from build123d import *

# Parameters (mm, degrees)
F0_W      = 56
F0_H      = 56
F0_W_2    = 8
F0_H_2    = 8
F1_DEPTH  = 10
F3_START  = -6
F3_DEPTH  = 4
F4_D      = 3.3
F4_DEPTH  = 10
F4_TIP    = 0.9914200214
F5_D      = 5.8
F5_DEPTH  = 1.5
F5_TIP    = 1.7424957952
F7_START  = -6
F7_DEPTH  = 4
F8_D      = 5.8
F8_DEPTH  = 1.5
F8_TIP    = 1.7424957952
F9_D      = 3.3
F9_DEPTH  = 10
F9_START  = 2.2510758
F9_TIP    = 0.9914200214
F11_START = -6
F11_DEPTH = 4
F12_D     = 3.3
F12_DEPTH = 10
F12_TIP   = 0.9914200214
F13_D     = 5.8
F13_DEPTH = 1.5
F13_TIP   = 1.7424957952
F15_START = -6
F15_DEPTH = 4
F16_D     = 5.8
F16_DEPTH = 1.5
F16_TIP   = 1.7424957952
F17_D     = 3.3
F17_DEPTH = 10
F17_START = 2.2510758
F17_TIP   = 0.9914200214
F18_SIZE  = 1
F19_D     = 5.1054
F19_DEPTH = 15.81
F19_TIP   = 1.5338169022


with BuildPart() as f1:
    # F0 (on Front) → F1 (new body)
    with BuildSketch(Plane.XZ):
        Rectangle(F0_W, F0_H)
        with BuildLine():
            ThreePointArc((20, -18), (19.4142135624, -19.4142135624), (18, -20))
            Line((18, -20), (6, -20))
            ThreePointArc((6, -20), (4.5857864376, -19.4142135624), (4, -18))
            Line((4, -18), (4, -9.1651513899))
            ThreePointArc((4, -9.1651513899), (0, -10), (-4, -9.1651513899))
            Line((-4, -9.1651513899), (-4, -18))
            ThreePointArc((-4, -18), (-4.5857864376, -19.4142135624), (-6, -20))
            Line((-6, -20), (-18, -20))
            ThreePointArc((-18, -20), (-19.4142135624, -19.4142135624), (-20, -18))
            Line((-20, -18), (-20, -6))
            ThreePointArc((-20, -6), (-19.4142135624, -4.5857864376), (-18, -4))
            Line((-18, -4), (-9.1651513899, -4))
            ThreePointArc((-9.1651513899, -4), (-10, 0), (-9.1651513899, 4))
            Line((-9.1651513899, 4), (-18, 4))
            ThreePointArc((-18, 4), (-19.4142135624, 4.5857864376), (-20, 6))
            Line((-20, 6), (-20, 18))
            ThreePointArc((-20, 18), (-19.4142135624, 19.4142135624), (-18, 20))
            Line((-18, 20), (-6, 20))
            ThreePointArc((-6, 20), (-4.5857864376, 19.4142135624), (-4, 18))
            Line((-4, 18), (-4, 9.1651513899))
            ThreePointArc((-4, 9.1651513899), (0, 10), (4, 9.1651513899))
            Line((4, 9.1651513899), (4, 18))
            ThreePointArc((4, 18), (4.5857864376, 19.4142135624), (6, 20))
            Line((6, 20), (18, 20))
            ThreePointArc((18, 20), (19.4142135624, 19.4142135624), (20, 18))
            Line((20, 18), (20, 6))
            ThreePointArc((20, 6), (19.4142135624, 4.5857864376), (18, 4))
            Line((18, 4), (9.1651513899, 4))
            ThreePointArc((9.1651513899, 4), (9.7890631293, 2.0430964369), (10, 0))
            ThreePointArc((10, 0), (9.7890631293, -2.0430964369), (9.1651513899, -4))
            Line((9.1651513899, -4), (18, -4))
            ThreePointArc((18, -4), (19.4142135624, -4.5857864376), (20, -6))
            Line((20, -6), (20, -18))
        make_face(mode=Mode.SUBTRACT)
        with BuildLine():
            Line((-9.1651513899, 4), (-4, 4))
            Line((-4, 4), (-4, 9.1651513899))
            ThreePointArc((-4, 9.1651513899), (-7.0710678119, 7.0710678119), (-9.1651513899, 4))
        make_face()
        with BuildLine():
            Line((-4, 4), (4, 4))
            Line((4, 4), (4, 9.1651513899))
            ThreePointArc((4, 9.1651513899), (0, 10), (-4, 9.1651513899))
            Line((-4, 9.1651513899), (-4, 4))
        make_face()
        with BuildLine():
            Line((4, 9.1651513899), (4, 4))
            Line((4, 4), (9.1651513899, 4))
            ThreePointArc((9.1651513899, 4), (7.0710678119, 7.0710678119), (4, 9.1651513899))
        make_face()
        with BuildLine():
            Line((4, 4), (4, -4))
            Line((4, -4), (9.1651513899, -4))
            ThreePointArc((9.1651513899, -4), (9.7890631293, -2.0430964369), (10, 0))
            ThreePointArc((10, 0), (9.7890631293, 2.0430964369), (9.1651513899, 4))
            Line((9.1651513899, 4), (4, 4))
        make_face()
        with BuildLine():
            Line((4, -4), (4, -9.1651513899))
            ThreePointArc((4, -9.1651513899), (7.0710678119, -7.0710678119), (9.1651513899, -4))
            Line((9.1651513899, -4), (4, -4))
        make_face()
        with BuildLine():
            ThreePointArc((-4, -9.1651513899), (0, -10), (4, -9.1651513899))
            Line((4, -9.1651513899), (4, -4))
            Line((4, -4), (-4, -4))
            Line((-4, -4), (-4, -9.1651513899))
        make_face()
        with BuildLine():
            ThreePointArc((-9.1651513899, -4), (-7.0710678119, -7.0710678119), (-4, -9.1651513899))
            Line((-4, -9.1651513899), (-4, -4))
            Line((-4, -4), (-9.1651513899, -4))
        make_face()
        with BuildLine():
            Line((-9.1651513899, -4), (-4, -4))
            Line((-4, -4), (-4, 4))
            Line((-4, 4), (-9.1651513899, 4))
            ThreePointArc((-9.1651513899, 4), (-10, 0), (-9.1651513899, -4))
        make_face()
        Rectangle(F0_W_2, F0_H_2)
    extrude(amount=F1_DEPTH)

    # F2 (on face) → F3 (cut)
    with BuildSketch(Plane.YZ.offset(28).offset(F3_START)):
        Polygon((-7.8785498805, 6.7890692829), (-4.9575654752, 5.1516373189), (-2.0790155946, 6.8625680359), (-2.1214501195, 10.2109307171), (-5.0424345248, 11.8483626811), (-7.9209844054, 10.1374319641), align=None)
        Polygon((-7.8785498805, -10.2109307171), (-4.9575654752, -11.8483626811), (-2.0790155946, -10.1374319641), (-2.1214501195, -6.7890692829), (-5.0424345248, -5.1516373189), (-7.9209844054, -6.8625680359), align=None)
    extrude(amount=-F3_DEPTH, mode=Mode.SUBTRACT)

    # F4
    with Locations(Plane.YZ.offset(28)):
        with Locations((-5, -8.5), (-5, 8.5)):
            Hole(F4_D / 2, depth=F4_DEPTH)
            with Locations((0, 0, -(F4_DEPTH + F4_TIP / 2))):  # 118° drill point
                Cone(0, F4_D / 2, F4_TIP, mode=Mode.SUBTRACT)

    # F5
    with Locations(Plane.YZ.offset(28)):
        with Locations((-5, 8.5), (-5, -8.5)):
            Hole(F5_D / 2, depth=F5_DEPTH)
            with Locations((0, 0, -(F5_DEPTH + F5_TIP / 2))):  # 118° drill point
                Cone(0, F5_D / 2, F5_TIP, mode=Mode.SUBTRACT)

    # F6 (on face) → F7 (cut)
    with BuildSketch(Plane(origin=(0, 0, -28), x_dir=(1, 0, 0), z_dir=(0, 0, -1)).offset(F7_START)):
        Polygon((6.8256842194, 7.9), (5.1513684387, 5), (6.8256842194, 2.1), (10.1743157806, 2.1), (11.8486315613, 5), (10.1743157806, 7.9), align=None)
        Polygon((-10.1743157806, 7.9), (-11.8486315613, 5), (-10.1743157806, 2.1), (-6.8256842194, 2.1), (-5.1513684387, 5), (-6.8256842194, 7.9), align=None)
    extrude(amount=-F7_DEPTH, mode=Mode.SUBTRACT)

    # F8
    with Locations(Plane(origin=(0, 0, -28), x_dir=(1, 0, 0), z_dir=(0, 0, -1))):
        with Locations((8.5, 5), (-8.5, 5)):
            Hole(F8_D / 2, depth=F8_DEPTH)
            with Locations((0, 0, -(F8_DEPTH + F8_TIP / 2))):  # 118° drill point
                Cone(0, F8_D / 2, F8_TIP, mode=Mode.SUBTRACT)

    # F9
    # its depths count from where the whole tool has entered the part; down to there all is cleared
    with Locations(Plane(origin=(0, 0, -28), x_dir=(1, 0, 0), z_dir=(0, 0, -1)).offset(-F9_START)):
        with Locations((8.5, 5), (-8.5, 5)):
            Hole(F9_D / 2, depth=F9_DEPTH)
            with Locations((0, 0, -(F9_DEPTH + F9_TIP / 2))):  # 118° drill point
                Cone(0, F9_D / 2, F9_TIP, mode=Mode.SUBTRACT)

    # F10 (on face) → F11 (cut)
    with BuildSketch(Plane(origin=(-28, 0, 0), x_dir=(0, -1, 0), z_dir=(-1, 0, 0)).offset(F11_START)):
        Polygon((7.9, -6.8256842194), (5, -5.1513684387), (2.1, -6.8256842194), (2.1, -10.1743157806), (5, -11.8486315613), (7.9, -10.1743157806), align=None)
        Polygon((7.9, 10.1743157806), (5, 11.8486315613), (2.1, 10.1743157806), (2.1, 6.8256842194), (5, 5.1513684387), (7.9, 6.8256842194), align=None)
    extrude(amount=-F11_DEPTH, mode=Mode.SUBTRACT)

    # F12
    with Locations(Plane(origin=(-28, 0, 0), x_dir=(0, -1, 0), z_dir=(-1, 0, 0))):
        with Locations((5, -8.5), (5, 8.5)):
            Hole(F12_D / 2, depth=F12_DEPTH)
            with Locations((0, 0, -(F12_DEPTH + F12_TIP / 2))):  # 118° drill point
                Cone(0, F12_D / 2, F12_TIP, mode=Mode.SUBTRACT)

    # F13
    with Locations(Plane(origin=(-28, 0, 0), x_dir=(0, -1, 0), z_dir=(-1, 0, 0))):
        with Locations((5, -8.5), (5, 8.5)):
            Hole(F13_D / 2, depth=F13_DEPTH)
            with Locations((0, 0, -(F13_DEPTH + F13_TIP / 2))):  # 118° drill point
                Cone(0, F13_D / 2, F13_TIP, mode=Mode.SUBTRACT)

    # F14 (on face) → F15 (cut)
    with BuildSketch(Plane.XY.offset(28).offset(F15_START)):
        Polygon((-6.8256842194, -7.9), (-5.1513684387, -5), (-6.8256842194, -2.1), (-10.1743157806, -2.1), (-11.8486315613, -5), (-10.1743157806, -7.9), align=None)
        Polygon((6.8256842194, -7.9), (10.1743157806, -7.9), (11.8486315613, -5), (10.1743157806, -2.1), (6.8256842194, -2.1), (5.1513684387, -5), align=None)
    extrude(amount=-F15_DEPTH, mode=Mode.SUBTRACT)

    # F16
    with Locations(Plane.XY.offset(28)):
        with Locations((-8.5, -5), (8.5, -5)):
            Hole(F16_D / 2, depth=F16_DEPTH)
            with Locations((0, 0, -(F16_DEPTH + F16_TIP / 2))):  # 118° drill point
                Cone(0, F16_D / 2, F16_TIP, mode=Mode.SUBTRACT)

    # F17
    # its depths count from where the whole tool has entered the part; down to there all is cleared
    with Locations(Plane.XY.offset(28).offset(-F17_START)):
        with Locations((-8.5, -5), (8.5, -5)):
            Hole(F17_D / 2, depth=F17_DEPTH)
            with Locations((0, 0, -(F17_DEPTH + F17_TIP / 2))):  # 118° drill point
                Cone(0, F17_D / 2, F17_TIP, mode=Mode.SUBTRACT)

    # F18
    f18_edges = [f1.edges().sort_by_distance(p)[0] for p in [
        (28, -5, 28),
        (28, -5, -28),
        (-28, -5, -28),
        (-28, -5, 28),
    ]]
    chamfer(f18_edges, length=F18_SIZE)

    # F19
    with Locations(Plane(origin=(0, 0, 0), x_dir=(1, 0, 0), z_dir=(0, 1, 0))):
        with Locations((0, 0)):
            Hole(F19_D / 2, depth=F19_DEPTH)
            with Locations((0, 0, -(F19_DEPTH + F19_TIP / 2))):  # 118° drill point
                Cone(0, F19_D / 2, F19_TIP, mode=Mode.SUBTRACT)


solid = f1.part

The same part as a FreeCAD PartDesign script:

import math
import FreeCAD as App
import Part
import Sketcher
Q = App.Units.Quantity


def edges_at(feature, points):
    """Names of the edges that pass closest to the given points."""
    edges = feature.Shape.Edges
    near = lambda p: min(range(len(edges)), key=lambda i: edges[i].distToShape(Part.Vertex(*p))[0])
    return sorted({f"Edge{near(p) + 1}" for p in points})

doc = App.newDocument("Part")
body = doc.addObject("PartDesign::Body", "Body")

sketch1 = body.newObject("Sketcher::SketchObject", "Sketch")
sketch1.AttachmentSupport = (doc.getObject("XZ_Plane"), [""])
sketch1.MapMode = "FlatFace"
sketch1.addGeometry(Part.LineSegment(App.Vector(-28, 28, 0), App.Vector(-28, -28, 0)), False)
sketch1.addGeometry(Part.LineSegment(App.Vector(-28, -28, 0), App.Vector(28, -28, 0)), False)
sketch1.addGeometry(Part.LineSegment(App.Vector(28, -28, 0), App.Vector(28, 28, 0)), False)
sketch1.addGeometry(Part.LineSegment(App.Vector(28, 28, 0), App.Vector(-28, 28, 0)), False)
sketch1.addGeometry(Part.LineSegment(App.Vector(-18, -4, 0), App.Vector(-9.2, -4, 0)), False)
sketch1.addGeometry(Part.ArcOfCircle(Part.Circle(App.Vector(0, 0, 0), App.Vector(0, 0, 1), 10), math.radians(-156), math.radians(-114)), False)
sketch1.addGeometry(Part.LineSegment(App.Vector(-4, -9.2, 0), App.Vector(-4, -18, 0)), False)
sketch1.addGeometry(Part.ArcOfCircle(Part.Circle(App.Vector(-6, -18, 0), App.Vector(0, 0, 1), 2), math.radians(-90), math.radians(0)), False)
sketch1.addGeometry(Part.LineSegment(App.Vector(-6, -20, 0), App.Vector(-18, -20, 0)), False)
sketch1.addGeometry(Part.ArcOfCircle(Part.Circle(App.Vector(-18, -18, 0), App.Vector(0, 0, 1), 2), math.radians(180), math.radians(270)), False)
sketch1.addGeometry(Part.LineSegment(App.Vector(-20, -18, 0), App.Vector(-20, -6, 0)), False)
sketch1.addGeometry(Part.ArcOfCircle(Part.Circle(App.Vector(-18, -6, 0), App.Vector(0, 0, 1), 2), math.radians(90), math.radians(180)), False)
sketch1.addGeometry(Part.LineSegment(App.Vector(4, -18, 0), App.Vector(4, -9.2, 0)), False)
sketch1.addGeometry(Part.ArcOfCircle(Part.Circle(App.Vector(0, 0, 0), App.Vector(0, 0, 1), 10), math.radians(-66), math.radians(-24)), False)
sketch1.addGeometry(Part.LineSegment(App.Vector(9.2, -4, 0), App.Vector(18, -4, 0)), False)
sketch1.addGeometry(Part.ArcOfCircle(Part.Circle(App.Vector(18, -6, 0), App.Vector(0, 0, 1), 2), math.radians(0), math.radians(90)), False)
sketch1.addGeometry(Part.LineSegment(App.Vector(20, -6, 0), App.Vector(20, -18, 0)), False)
sketch1.addGeometry(Part.ArcOfCircle(Part.Circle(App.Vector(18, -18, 0), App.Vector(0, 0, 1), 2), math.radians(-90), math.radians(0)), False)
sketch1.addGeometry(Part.LineSegment(App.Vector(18, -20, 0), App.Vector(6, -20, 0)), False)
sketch1.addGeometry(Part.ArcOfCircle(Part.Circle(App.Vector(6, -18, 0), App.Vector(0, 0, 1), 2), math.radians(180), math.radians(270)), False)
sketch1.addGeometry(Part.ArcOfCircle(Part.Circle(App.Vector(0, 0, 0), App.Vector(0, 0, 1), 10), math.radians(114), math.radians(156)), False)
sketch1.addGeometry(Part.LineSegment(App.Vector(-9.2, 4, 0), App.Vector(-18, 4, 0)), False)
sketch1.addGeometry(Part.ArcOfCircle(Part.Circle(App.Vector(-18, 6, 0), App.Vector(0, 0, 1), 2), math.radians(180), math.radians(270)), False)
sketch1.addGeometry(Part.LineSegment(App.Vector(-20, 6, 0), App.Vector(-20, 18, 0)), False)
sketch1.addGeometry(Part.ArcOfCircle(Part.Circle(App.Vector(-18, 18, 0), App.Vector(0, 0, 1), 2), math.radians(90), math.radians(180)), False)
sketch1.addGeometry(Part.LineSegment(App.Vector(-18, 20, 0), App.Vector(-6, 20, 0)), False)
sketch1.addGeometry(Part.ArcOfCircle(Part.Circle(App.Vector(-6, 18, 0), App.Vector(0, 0, 1), 2), math.radians(0), math.radians(90)), False)
sketch1.addGeometry(Part.LineSegment(App.Vector(-4, 18, 0), App.Vector(-4, 9.2, 0)), False)
sketch1.addGeometry(Part.LineSegment(App.Vector(18, 4, 0), App.Vector(9.2, 4, 0)), False)
sketch1.addGeometry(Part.ArcOfCircle(Part.Circle(App.Vector(0, 0, 0), App.Vector(0, 0, 1), 10), math.radians(24), math.radians(66)), False)
sketch1.addGeometry(Part.LineSegment(App.Vector(4, 9.2, 0), App.Vector(4, 18, 0)), False)
sketch1.addGeometry(Part.ArcOfCircle(Part.Circle(App.Vector(6, 18, 0), App.Vector(0, 0, 1), 2), math.radians(90), math.radians(180)), False)
sketch1.addGeometry(Part.LineSegment(App.Vector(6, 20, 0), App.Vector(18, 20, 0)), False)
sketch1.addGeometry(Part.ArcOfCircle(Part.Circle(App.Vector(18, 18, 0), App.Vector(0, 0, 1), 2), math.radians(0), math.radians(90)), False)
sketch1.addGeometry(Part.LineSegment(App.Vector(20, 18, 0), App.Vector(20, 6, 0)), False)
sketch1.addGeometry(Part.ArcOfCircle(Part.Circle(App.Vector(18, 6, 0), App.Vector(0, 0, 1), 2), math.radians(-90), math.radians(0)), False)
sketch1.addConstraint(Sketcher.Constraint("Coincident", 0, 2, 1, 1))
sketch1.addConstraint(Sketcher.Constraint("Coincident", 1, 2, 2, 1))
sketch1.addConstraint(Sketcher.Constraint("Coincident", 2, 2, 3, 1))
sketch1.addConstraint(Sketcher.Constraint("Coincident", 3, 2, 0, 1))
sketch1.addConstraint(Sketcher.Constraint("Coincident", 4, 2, 5, 1))
sketch1.addConstraint(Sketcher.Constraint("Coincident", 5, 2, 6, 1))
sketch1.addConstraint(Sketcher.Constraint("Tangent", 6, 2, 7, 2))
sketch1.addConstraint(Sketcher.Constraint("Tangent", 7, 1, 8, 1))
sketch1.addConstraint(Sketcher.Constraint("Tangent", 8, 2, 9, 2))
sketch1.addConstraint(Sketcher.Constraint("Tangent", 9, 1, 10, 1))
sketch1.addConstraint(Sketcher.Constraint("Tangent", 10, 2, 11, 2))
sketch1.addConstraint(Sketcher.Constraint("Tangent", 11, 1, 4, 1))
sketch1.addConstraint(Sketcher.Constraint("Coincident", 12, 2, 13, 1))
sketch1.addConstraint(Sketcher.Constraint("Coincident", 13, 2, 14, 1))
sketch1.addConstraint(Sketcher.Constraint("Tangent", 14, 2, 15, 2))
sketch1.addConstraint(Sketcher.Constraint("Tangent", 15, 1, 16, 1))
sketch1.addConstraint(Sketcher.Constraint("Tangent", 16, 2, 17, 2))
sketch1.addConstraint(Sketcher.Constraint("Tangent", 17, 1, 18, 1))
sketch1.addConstraint(Sketcher.Constraint("Tangent", 18, 2, 19, 2))
sketch1.addConstraint(Sketcher.Constraint("Tangent", 19, 1, 12, 1))
sketch1.addConstraint(Sketcher.Constraint("Coincident", 20, 2, 21, 1))
sketch1.addConstraint(Sketcher.Constraint("Tangent", 21, 2, 22, 2))
sketch1.addConstraint(Sketcher.Constraint("Tangent", 22, 1, 23, 1))
sketch1.addConstraint(Sketcher.Constraint("Tangent", 23, 2, 24, 2))
sketch1.addConstraint(Sketcher.Constraint("Tangent", 24, 1, 25, 1))
sketch1.addConstraint(Sketcher.Constraint("Tangent", 25, 2, 26, 2))
sketch1.addConstraint(Sketcher.Constraint("Tangent", 26, 1, 27, 1))
sketch1.addConstraint(Sketcher.Constraint("Coincident", 27, 2, 20, 1))
sketch1.addConstraint(Sketcher.Constraint("Coincident", 28, 2, 29, 1))
sketch1.addConstraint(Sketcher.Constraint("Coincident", 29, 2, 30, 1))
sketch1.addConstraint(Sketcher.Constraint("Tangent", 30, 2, 31, 2))
sketch1.addConstraint(Sketcher.Constraint("Tangent", 31, 1, 32, 1))
sketch1.addConstraint(Sketcher.Constraint("Tangent", 32, 2, 33, 2))
sketch1.addConstraint(Sketcher.Constraint("Tangent", 33, 1, 34, 1))
sketch1.addConstraint(Sketcher.Constraint("Tangent", 34, 2, 35, 2))
sketch1.addConstraint(Sketcher.Constraint("Tangent", 35, 1, 28, 1))
sketch1.addConstraint(Sketcher.Constraint("Vertical", 0))
sketch1.addConstraint(Sketcher.Constraint("Horizontal", 1))
sketch1.addConstraint(Sketcher.Constraint("Vertical", 2))
sketch1.addConstraint(Sketcher.Constraint("Horizontal", 3))
sketch1.addConstraint(Sketcher.Constraint("Horizontal", 4))
sketch1.addConstraint(Sketcher.Constraint("Vertical", 6))
sketch1.addConstraint(Sketcher.Constraint("Horizontal", 8))
sketch1.addConstraint(Sketcher.Constraint("Vertical", 10))
sketch1.addConstraint(Sketcher.Constraint("Vertical", 12))
sketch1.addConstraint(Sketcher.Constraint("Horizontal", 14))
sketch1.addConstraint(Sketcher.Constraint("Vertical", 16))
sketch1.addConstraint(Sketcher.Constraint("Horizontal", 18))
sketch1.addConstraint(Sketcher.Constraint("Horizontal", 21))
sketch1.addConstraint(Sketcher.Constraint("Vertical", 23))
sketch1.addConstraint(Sketcher.Constraint("Horizontal", 25))
sketch1.addConstraint(Sketcher.Constraint("Vertical", 27))
sketch1.addConstraint(Sketcher.Constraint("Horizontal", 28))
sketch1.addConstraint(Sketcher.Constraint("Vertical", 30))
sketch1.addConstraint(Sketcher.Constraint("Horizontal", 32))
sketch1.addConstraint(Sketcher.Constraint("Vertical", 34))
sketch1.addConstraint(Sketcher.Constraint("Coincident", 5, 3, -1, 1))
sketch1.addConstraint(Sketcher.Constraint("Coincident", 13, 3, -1, 1))
sketch1.addConstraint(Sketcher.Constraint("Coincident", 20, 3, -1, 1))
sketch1.addConstraint(Sketcher.Constraint("Coincident", 29, 3, -1, 1))
sketch1.addConstraint(Sketcher.Constraint("Equal", 7, 9))
sketch1.addConstraint(Sketcher.Constraint("Equal", 9, 11))
sketch1.addConstraint(Sketcher.Constraint("Equal", 5, 13))
sketch1.addConstraint(Sketcher.Constraint("Equal", 11, 15))
sketch1.addConstraint(Sketcher.Constraint("Equal", 15, 17))
sketch1.addConstraint(Sketcher.Constraint("Equal", 17, 19))
sketch1.addConstraint(Sketcher.Constraint("Equal", 13, 20))
sketch1.addConstraint(Sketcher.Constraint("Equal", 19, 22))
sketch1.addConstraint(Sketcher.Constraint("Equal", 22, 24))
sketch1.addConstraint(Sketcher.Constraint("Equal", 24, 26))
sketch1.addConstraint(Sketcher.Constraint("Equal", 20, 29))
sketch1.addConstraint(Sketcher.Constraint("Equal", 26, 31))
sketch1.addConstraint(Sketcher.Constraint("Equal", 31, 33))
sketch1.addConstraint(Sketcher.Constraint("Equal", 33, 35))
sketch1.addConstraint(Sketcher.Constraint("Symmetric", 15, 3, 22, 3, -1, 1))
sketch1.addConstraint(Sketcher.Constraint("Symmetric", 19, 3, 26, 3, -1, 1))
sketch1.addConstraint(Sketcher.Constraint("Symmetric", 7, 3, 31, 3, -1, 1))
sketch1.addConstraint(Sketcher.Constraint("Symmetric", 11, 3, 35, 3, -1, 1))
sketch1.addConstraint(Sketcher.Constraint("Symmetric", 0, 2, 2, 2, -1, 1))
sketch1.addConstraint(Sketcher.Constraint("Symmetric", 11, 3, 15, 3, -2))
sketch1.addConstraint(Sketcher.Constraint("Symmetric", 7, 3, 19, 3, -2))
sketch1.addConstraint(Sketcher.Constraint("Equal", 3, 0))
sketch1.addConstraint(Sketcher.Constraint("Equal", 28, 6))
sketch1.addConstraint(Sketcher.Constraint("Equal", 32, 10))
sketch1.addConstraint(Sketcher.Constraint("Radius", 5, Q("10 mm")))
sketch1.addConstraint(Sketcher.Constraint("Radius", 7, Q("2 mm")))
sketch1.addConstraint(Sketcher.Constraint("DistanceX", 1, 1, 1, 2, Q("56 mm")))
sketch1.addConstraint(Sketcher.Constraint("DistanceX", 8, 2, 8, 1, Q("12 mm")))
sketch1.addConstraint(Sketcher.Constraint("DistanceX", 7, 3, -1, 1, Q("6 mm")))
pad1 = body.newObject("PartDesign::Pad", "Pad")
pad1.Profile = sketch1
pad1.Length = 10

sketch2 = body.newObject("Sketcher::SketchObject", "Sketch001")
sketch2.AttachmentSupport = (doc.getObject("YZ_Plane"), [""])
sketch2.MapMode = "FlatFace"
sketch2.AttachmentOffset = App.Placement(App.Vector(0, 0, 22), App.Rotation())
sketch2.addGeometry(Part.LineSegment(App.Vector(-7.87855, 6.789069, 0), App.Vector(-4.957565, 5.151637, 0)), False)
sketch2.addGeometry(Part.LineSegment(App.Vector(-4.957565, 5.151637, 0), App.Vector(-2.079016, 6.862568, 0)), False)
sketch2.addGeometry(Part.LineSegment(App.Vector(-2.079016, 6.862568, 0), App.Vector(-2.12145, 10.210931, 0)), False)
sketch2.addGeometry(Part.LineSegment(App.Vector(-2.12145, 10.210931, 0), App.Vector(-5.042435, 11.848363, 0)), False)
sketch2.addGeometry(Part.LineSegment(App.Vector(-5.042435, 11.848363, 0), App.Vector(-7.920984, 10.137432, 0)), False)
sketch2.addGeometry(Part.LineSegment(App.Vector(-7.920984, 10.137432, 0), App.Vector(-7.87855, 6.789069, 0)), False)
sketch2.addGeometry(Part.LineSegment(App.Vector(-7.87855, -10.210931, 0), App.Vector(-4.957565, -11.848363, 0)), False)
sketch2.addGeometry(Part.LineSegment(App.Vector(-4.957565, -11.848363, 0), App.Vector(-2.079016, -10.137432, 0)), False)
sketch2.addGeometry(Part.LineSegment(App.Vector(-2.079016, -10.137432, 0), App.Vector(-2.12145, -6.789069, 0)), False)
sketch2.addGeometry(Part.LineSegment(App.Vector(-2.12145, -6.789069, 0), App.Vector(-5.042435, -5.151637, 0)), False)
sketch2.addGeometry(Part.LineSegment(App.Vector(-5.042435, -5.151637, 0), App.Vector(-7.920984, -6.862568, 0)), False)
sketch2.addGeometry(Part.LineSegment(App.Vector(-7.920984, -6.862568, 0), App.Vector(-7.87855, -10.210931, 0)), False)
sketch2.addConstraint(Sketcher.Constraint("Coincident", 0, 2, 1, 1))
sketch2.addConstraint(Sketcher.Constraint("Coincident", 1, 2, 2, 1))
sketch2.addConstraint(Sketcher.Constraint("Coincident", 2, 2, 3, 1))
sketch2.addConstraint(Sketcher.Constraint("Coincident", 3, 2, 4, 1))
sketch2.addConstraint(Sketcher.Constraint("Coincident", 4, 2, 5, 1))
sketch2.addConstraint(Sketcher.Constraint("Coincident", 5, 2, 0, 1))
sketch2.addConstraint(Sketcher.Constraint("Coincident", 6, 2, 7, 1))
sketch2.addConstraint(Sketcher.Constraint("Coincident", 7, 2, 8, 1))
sketch2.addConstraint(Sketcher.Constraint("Coincident", 8, 2, 9, 1))
sketch2.addConstraint(Sketcher.Constraint("Coincident", 9, 2, 10, 1))
sketch2.addConstraint(Sketcher.Constraint("Coincident", 10, 2, 11, 1))
sketch2.addConstraint(Sketcher.Constraint("Coincident", 11, 2, 6, 1))
sketch2.addConstraint(Sketcher.Constraint("Parallel", 0, 3))
sketch2.addConstraint(Sketcher.Constraint("Parallel", 1, 4))
sketch2.addConstraint(Sketcher.Constraint("Parallel", 2, 5))
sketch2.addConstraint(Sketcher.Constraint("Parallel", 3, 6))
sketch2.addConstraint(Sketcher.Constraint("Parallel", 4, 7))
sketch2.addConstraint(Sketcher.Constraint("Parallel", 5, 8))
sketch2.addConstraint(Sketcher.Constraint("Parallel", 6, 9))
sketch2.addConstraint(Sketcher.Constraint("Parallel", 7, 10))
sketch2.addConstraint(Sketcher.Constraint("Parallel", 8, 11))
sketch2.addConstraint(Sketcher.Constraint("Vertical", 0, 2, 6, 2))
sketch2.addConstraint(Sketcher.Constraint("Vertical", 1, 2, 7, 2))
sketch2.addConstraint(Sketcher.Constraint("Vertical", 2, 2, 8, 2))
sketch2.addConstraint(Sketcher.Constraint("Vertical", 3, 2, 9, 2))
sketch2.addConstraint(Sketcher.Constraint("Vertical", 4, 2, 10, 2))
sketch2.addConstraint(Sketcher.Constraint("Equal", 0, 1))
sketch2.addConstraint(Sketcher.Constraint("Equal", 1, 2))
sketch2.addConstraint(Sketcher.Constraint("Equal", 2, 3))
sketch2.addConstraint(Sketcher.Constraint("DistanceY", 6, 2, 0, 2, Q("17 mm")))
sketch2.addConstraint(Sketcher.Constraint("DistanceY", 4, 2, 2, 2, Q("0.073499 mm")))
sketch2.addConstraint(Sketcher.Constraint("DistanceX", 5, 2, 2, 2, Q("5.7571 mm")))
sketch2.addConstraint(Sketcher.Constraint("Distance", 0, Q("3.348632 mm")))
sketch2.addConstraint(Sketcher.Constraint("DistanceY", -1, 1, 1, 2, Q("6.862568 mm")))
sketch2.addConstraint(Sketcher.Constraint("DistanceX", 2, 2, -1, 1, Q("2.12145 mm")))
sketch2.addConstraint(Sketcher.Constraint("DistanceY", -1, 1, 2, 2, Q("10.210931 mm")))
pocket1 = body.newObject("PartDesign::Pocket", "Pocket")
pocket1.Profile = sketch2
pocket1.Length = 4

sketch3 = body.newObject("Sketcher::SketchObject", "Sketch002")
sketch3.AttachmentSupport = (doc.getObject("YZ_Plane"), [""])
sketch3.MapMode = "FlatFace"
sketch3.AttachmentOffset = App.Placement(App.Vector(0, 0, 28), App.Rotation())
sketch3.addGeometry(Part.Circle(App.Vector(-5, -8.5, 0), App.Vector(0, 0, 1), 1.6), False)
sketch3.addGeometry(Part.Circle(App.Vector(-5, 8.5, 0), App.Vector(0, 0, 1), 1.6), False)
sketch3.addConstraint(Sketcher.Constraint("Equal", 0, 1))
sketch3.addConstraint(Sketcher.Constraint("Symmetric", 0, 3, 1, 3, -1))
sketch3.addConstraint(Sketcher.Constraint("Diameter", 0, Q("3.3 mm")))
sketch3.addConstraint(Sketcher.Constraint("DistanceX", 0, 3, -1, 1, Q("5 mm")))
sketch3.addConstraint(Sketcher.Constraint("DistanceY", 0, 3, 1, 3, Q("17 mm")))
doc.recompute()
hole = body.newObject("PartDesign::Hole", "Hole")
hole.Profile = sketch3
hole.ThreadType = "None"
hole.Diameter = 3.3
hole.DepthType = "Dimension"
hole.Depth = 10
hole.DrillPoint = "Angled"
hole.DrillPointAngle = 118

sketch4 = body.newObject("Sketcher::SketchObject", "Sketch003")
sketch4.AttachmentSupport = (doc.getObject("YZ_Plane"), [""])
sketch4.MapMode = "FlatFace"
sketch4.AttachmentOffset = App.Placement(App.Vector(0, 0, 28), App.Rotation())
sketch4.addGeometry(Part.Circle(App.Vector(-5, 8.5, 0), App.Vector(0, 0, 1), 2.9), False)
sketch4.addGeometry(Part.Circle(App.Vector(-5, -8.5, 0), App.Vector(0, 0, 1), 2.9), False)
sketch4.addConstraint(Sketcher.Constraint("Equal", 0, 1))
sketch4.addConstraint(Sketcher.Constraint("Symmetric", 0, 3, 1, 3, -1))
sketch4.addConstraint(Sketcher.Constraint("Diameter", 0, Q("5.8 mm")))
sketch4.addConstraint(Sketcher.Constraint("DistanceX", 0, 3, -1, 1, Q("5 mm")))
sketch4.addConstraint(Sketcher.Constraint("DistanceY", 1, 3, 0, 3, Q("17 mm")))
doc.recompute()
hole2 = body.newObject("PartDesign::Hole", "Hole001")
hole2.Profile = sketch4
hole2.ThreadType = "None"
hole2.Diameter = 5.8
hole2.DepthType = "Dimension"
hole2.Depth = 1.5
hole2.DrillPoint = "Angled"
hole2.DrillPointAngle = 118

sketch5 = body.newObject("Sketcher::SketchObject", "Sketch004")
sketch5.AttachmentSupport = (doc.getObject("XY_Plane"), [""])
sketch5.MapMode = "FlatFace"
sketch5.AttachmentOffset = App.Placement(App.Vector(0, 0, -22), App.Rotation())
sketch5.addGeometry(Part.LineSegment(App.Vector(6.8, -7.9, 0), App.Vector(5.2, -5, 0)), False)
sketch5.addGeometry(Part.LineSegment(App.Vector(5.2, -5, 0), App.Vector(6.8, -2.1, 0)), False)
sketch5.addGeometry(Part.LineSegment(App.Vector(6.8, -2.1, 0), App.Vector(10.2, -2.1, 0)), False)
sketch5.addGeometry(Part.LineSegment(App.Vector(10.2, -2.1, 0), App.Vector(11.8, -5, 0)), False)
sketch5.addGeometry(Part.LineSegment(App.Vector(11.8, -5, 0), App.Vector(10.2, -7.9, 0)), False)
sketch5.addGeometry(Part.LineSegment(App.Vector(10.2, -7.9, 0), App.Vector(6.8, -7.9, 0)), False)
sketch5.addGeometry(Part.LineSegment(App.Vector(-10.2, -7.9, 0), App.Vector(-11.8, -5, 0)), False)
sketch5.addGeometry(Part.LineSegment(App.Vector(-11.8, -5, 0), App.Vector(-10.2, -2.1, 0)), False)
sketch5.addGeometry(Part.LineSegment(App.Vector(-10.2, -2.1, 0), App.Vector(-6.8, -2.1, 0)), False)
sketch5.addGeometry(Part.LineSegment(App.Vector(-6.8, -2.1, 0), App.Vector(-5.2, -5, 0)), False)
sketch5.addGeometry(Part.LineSegment(App.Vector(-5.2, -5, 0), App.Vector(-6.8, -7.9, 0)), False)
sketch5.addGeometry(Part.LineSegment(App.Vector(-6.8, -7.9, 0), App.Vector(-10.2, -7.9, 0)), False)
sketch5.addConstraint(Sketcher.Constraint("Coincident", 0, 2, 1, 1))
sketch5.addConstraint(Sketcher.Constraint("Coincident", 1, 2, 2, 1))
sketch5.addConstraint(Sketcher.Constraint("Coincident", 2, 2, 3, 1))
sketch5.addConstraint(Sketcher.Constraint("Coincident", 3, 2, 4, 1))
sketch5.addConstraint(Sketcher.Constraint("Coincident", 4, 2, 5, 1))
sketch5.addConstraint(Sketcher.Constraint("Coincident", 5, 2, 0, 1))
sketch5.addConstraint(Sketcher.Constraint("Coincident", 6, 2, 7, 1))
sketch5.addConstraint(Sketcher.Constraint("Coincident", 7, 2, 8, 1))
sketch5.addConstraint(Sketcher.Constraint("Coincident", 8, 2, 9, 1))
sketch5.addConstraint(Sketcher.Constraint("Coincident", 9, 2, 10, 1))
sketch5.addConstraint(Sketcher.Constraint("Coincident", 10, 2, 11, 1))
sketch5.addConstraint(Sketcher.Constraint("Coincident", 11, 2, 6, 1))
sketch5.addConstraint(Sketcher.Constraint("Horizontal", 2))
sketch5.addConstraint(Sketcher.Constraint("Horizontal", 5))
sketch5.addConstraint(Sketcher.Constraint("Horizontal", 8))
sketch5.addConstraint(Sketcher.Constraint("Horizontal", 11))
sketch5.addConstraint(Sketcher.Constraint("Symmetric", 3, 2, 6, 2, -2))
sketch5.addConstraint(Sketcher.Constraint("Symmetric", 2, 2, 7, 2, -2))
sketch5.addConstraint(Sketcher.Constraint("Symmetric", 0, 2, 9, 2, -2))
sketch5.addConstraint(Sketcher.Constraint("Symmetric", 5, 2, 10, 2, -2))
sketch5.addConstraint(Sketcher.Constraint("Parallel", 0, 3))
sketch5.addConstraint(Sketcher.Constraint("Parallel", 1, 4))
sketch5.addConstraint(Sketcher.Constraint("Parallel", 3, 6))
sketch5.addConstraint(Sketcher.Constraint("Parallel", 4, 7))
sketch5.addConstraint(Sketcher.Constraint("Parallel", 6, 9))
sketch5.addConstraint(Sketcher.Constraint("Horizontal", 0, 2, 3, 2))
sketch5.addConstraint(Sketcher.Constraint("Vertical", 2, 2, 4, 2))
sketch5.addConstraint(Sketcher.Constraint("Angle", 0, Q("120 deg")))
sketch5.addConstraint(Sketcher.Constraint("DistanceY", 0, 2, -1, 1, Q("5 mm")))
sketch5.addConstraint(Sketcher.Constraint("DistanceX", 6, 2, 0, 2, Q("17 mm")))
sketch5.addConstraint(Sketcher.Constraint("DistanceY", 1, 2, -1, 1, Q("2.1 mm")))
sketch5.addConstraint(Sketcher.Constraint("DistanceX", 2, 1, 2, 2, Q("3.348632 mm")))
pocket2 = body.newObject("PartDesign::Pocket", "Pocket001")
pocket2.Profile = sketch5
pocket2.Length = 4
pocket2.Reversed = True

sketch6 = body.newObject("Sketcher::SketchObject", "Sketch005")
sketch6.AttachmentSupport = (doc.getObject("XY_Plane"), [""])
sketch6.MapMode = "FlatFace"
sketch6.AttachmentOffset = App.Placement(App.Vector(0, 0, -28), App.Rotation())
sketch6.addGeometry(Part.Circle(App.Vector(8.5, -5, 0), App.Vector(0, 0, 1), 2.9), False)
sketch6.addGeometry(Part.Circle(App.Vector(-8.5, -5, 0), App.Vector(0, 0, 1), 2.9), False)
sketch6.addConstraint(Sketcher.Constraint("Equal", 0, 1))
sketch6.addConstraint(Sketcher.Constraint("Symmetric", 0, 3, 1, 3, -2))
sketch6.addConstraint(Sketcher.Constraint("Diameter", 0, Q("5.8 mm")))
sketch6.addConstraint(Sketcher.Constraint("DistanceY", 0, 3, -1, 1, Q("5 mm")))
sketch6.addConstraint(Sketcher.Constraint("DistanceX", 1, 3, 0, 3, Q("17 mm")))
doc.recompute()
hole3 = body.newObject("PartDesign::Hole", "Hole002")
hole3.Profile = sketch6
hole3.ThreadType = "None"
hole3.Diameter = 5.8
hole3.DepthType = "Dimension"
hole3.Depth = 1.5
hole3.DrillPoint = "Angled"
hole3.DrillPointAngle = 118
hole3.Reversed = True

sketch7 = body.newObject("Sketcher::SketchObject", "Sketch006")
sketch7.AttachmentSupport = (doc.getObject("XY_Plane"), [""])
sketch7.MapMode = "FlatFace"
sketch7.AttachmentOffset = App.Placement(App.Vector(0, 0, -25.748924), App.Rotation())
sketch7.addGeometry(Part.Circle(App.Vector(8.5, -5, 0), App.Vector(0, 0, 1), 1.6), False)
sketch7.addGeometry(Part.Circle(App.Vector(-8.5, -5, 0), App.Vector(0, 0, 1), 1.6), False)
sketch7.addConstraint(Sketcher.Constraint("Equal", 0, 1))
sketch7.addConstraint(Sketcher.Constraint("Symmetric", 0, 3, 1, 3, -2))
sketch7.addConstraint(Sketcher.Constraint("Diameter", 0, Q("3.3 mm")))
sketch7.addConstraint(Sketcher.Constraint("DistanceY", 0, 3, -1, 1, Q("5 mm")))
sketch7.addConstraint(Sketcher.Constraint("DistanceX", 1, 3, 0, 3, Q("17 mm")))
doc.recompute()
hole4 = body.newObject("PartDesign::Hole", "Hole003")
hole4.Profile = sketch7
hole4.ThreadType = "None"
hole4.Diameter = 3.3
hole4.DepthType = "Dimension"
hole4.Depth = 10
hole4.DrillPoint = "Angled"
hole4.DrillPointAngle = 118
hole4.Reversed = True

sketch8 = body.newObject("Sketcher::SketchObject", "Sketch007")
sketch8.AttachmentSupport = (doc.getObject("YZ_Plane"), [""])
sketch8.MapMode = "FlatFace"
sketch8.AttachmentOffset = App.Placement(App.Vector(0, 0, -22), App.Rotation())
sketch8.addGeometry(Part.LineSegment(App.Vector(-7.9, -6.8, 0), App.Vector(-5, -5.2, 0)), False)
sketch8.addGeometry(Part.LineSegment(App.Vector(-5, -5.2, 0), App.Vector(-2.1, -6.8, 0)), False)
sketch8.addGeometry(Part.LineSegment(App.Vector(-2.1, -6.8, 0), App.Vector(-2.1, -10.2, 0)), False)
sketch8.addGeometry(Part.LineSegment(App.Vector(-2.1, -10.2, 0), App.Vector(-5, -11.8, 0)), False)
sketch8.addGeometry(Part.LineSegment(App.Vector(-5, -11.8, 0), App.Vector(-7.9, -10.2, 0)), False)
sketch8.addGeometry(Part.LineSegment(App.Vector(-7.9, -10.2, 0), App.Vector(-7.9, -6.8, 0)), False)
sketch8.addGeometry(Part.LineSegment(App.Vector(-7.9, 10.2, 0), App.Vector(-5, 11.8, 0)), False)
sketch8.addGeometry(Part.LineSegment(App.Vector(-5, 11.8, 0), App.Vector(-2.1, 10.2, 0)), False)
sketch8.addGeometry(Part.LineSegment(App.Vector(-2.1, 10.2, 0), App.Vector(-2.1, 6.8, 0)), False)
sketch8.addGeometry(Part.LineSegment(App.Vector(-2.1, 6.8, 0), App.Vector(-5, 5.2, 0)), False)
sketch8.addGeometry(Part.LineSegment(App.Vector(-5, 5.2, 0), App.Vector(-7.9, 6.8, 0)), False)
sketch8.addGeometry(Part.LineSegment(App.Vector(-7.9, 6.8, 0), App.Vector(-7.9, 10.2, 0)), False)
sketch8.addConstraint(Sketcher.Constraint("Coincident", 0, 2, 1, 1))
sketch8.addConstraint(Sketcher.Constraint("Coincident", 1, 2, 2, 1))
sketch8.addConstraint(Sketcher.Constraint("Coincident", 2, 2, 3, 1))
sketch8.addConstraint(Sketcher.Constraint("Coincident", 3, 2, 4, 1))
sketch8.addConstraint(Sketcher.Constraint("Coincident", 4, 2, 5, 1))
sketch8.addConstraint(Sketcher.Constraint("Coincident", 5, 2, 0, 1))
sketch8.addConstraint(Sketcher.Constraint("Coincident", 6, 2, 7, 1))
sketch8.addConstraint(Sketcher.Constraint("Coincident", 7, 2, 8, 1))
sketch8.addConstraint(Sketcher.Constraint("Coincident", 8, 2, 9, 1))
sketch8.addConstraint(Sketcher.Constraint("Coincident", 9, 2, 10, 1))
sketch8.addConstraint(Sketcher.Constraint("Coincident", 10, 2, 11, 1))
sketch8.addConstraint(Sketcher.Constraint("Coincident", 11, 2, 6, 1))
sketch8.addConstraint(Sketcher.Constraint("Vertical", 2))
sketch8.addConstraint(Sketcher.Constraint("Vertical", 5))
sketch8.addConstraint(Sketcher.Constraint("Vertical", 8))
sketch8.addConstraint(Sketcher.Constraint("Vertical", 11))
sketch8.addConstraint(Sketcher.Constraint("Symmetric", 3, 2, 6, 2, -1))
sketch8.addConstraint(Sketcher.Constraint("Symmetric", 2, 2, 7, 2, -1))
sketch8.addConstraint(Sketcher.Constraint("Symmetric", 0, 2, 9, 2, -1))
sketch8.addConstraint(Sketcher.Constraint("Symmetric", 5, 2, 10, 2, -1))
sketch8.addConstraint(Sketcher.Constraint("Parallel", 0, 3))
sketch8.addConstraint(Sketcher.Constraint("Parallel", 1, 4))
sketch8.addConstraint(Sketcher.Constraint("Parallel", 3, 6))
sketch8.addConstraint(Sketcher.Constraint("Parallel", 4, 7))
sketch8.addConstraint(Sketcher.Constraint("Parallel", 6, 9))
sketch8.addConstraint(Sketcher.Constraint("Horizontal", 2, 2, 4, 2))
sketch8.addConstraint(Sketcher.Constraint("Horizontal", 1, 2, 5, 2))
sketch8.addConstraint(Sketcher.Constraint("Angle", 0, Q("30 deg")))
sketch8.addConstraint(Sketcher.Constraint("DistanceX", 0, 2, -1, 1, Q("5 mm")))
sketch8.addConstraint(Sketcher.Constraint("DistanceY", 0, 2, 6, 2, Q("17 mm")))
sketch8.addConstraint(Sketcher.Constraint("DistanceX", 1, 2, -1, 1, Q("2.1 mm")))
sketch8.addConstraint(Sketcher.Constraint("DistanceY", 2, 2, 2, 1, Q("3.348632 mm")))
pocket3 = body.newObject("PartDesign::Pocket", "Pocket002")
pocket3.Profile = sketch8
pocket3.Length = 4
pocket3.Reversed = True

sketch9 = body.newObject("Sketcher::SketchObject", "Sketch008")
sketch9.AttachmentSupport = (doc.getObject("YZ_Plane"), [""])
sketch9.MapMode = "FlatFace"
sketch9.AttachmentOffset = App.Placement(App.Vector(0, 0, -28), App.Rotation())
sketch9.addGeometry(Part.Circle(App.Vector(-5, -8.5, 0), App.Vector(0, 0, 1), 1.6), False)
sketch9.addGeometry(Part.Circle(App.Vector(-5, 8.5, 0), App.Vector(0, 0, 1), 1.6), False)
sketch9.addConstraint(Sketcher.Constraint("Equal", 0, 1))
sketch9.addConstraint(Sketcher.Constraint("Symmetric", 0, 3, 1, 3, -1))
sketch9.addConstraint(Sketcher.Constraint("Diameter", 0, Q("3.3 mm")))
sketch9.addConstraint(Sketcher.Constraint("DistanceX", 0, 3, -1, 1, Q("5 mm")))
sketch9.addConstraint(Sketcher.Constraint("DistanceY", 0, 3, 1, 3, Q("17 mm")))
doc.recompute()
hole5 = body.newObject("PartDesign::Hole", "Hole004")
hole5.Profile = sketch9
hole5.ThreadType = "None"
hole5.Diameter = 3.3
hole5.DepthType = "Dimension"
hole5.Depth = 10
hole5.DrillPoint = "Angled"
hole5.DrillPointAngle = 118
hole5.Reversed = True

sketch10 = body.newObject("Sketcher::SketchObject", "Sketch009")
sketch10.AttachmentSupport = (doc.getObject("YZ_Plane"), [""])
sketch10.MapMode = "FlatFace"
sketch10.AttachmentOffset = App.Placement(App.Vector(0, 0, -28), App.Rotation())
sketch10.addGeometry(Part.Circle(App.Vector(-5, -8.5, 0), App.Vector(0, 0, 1), 2.9), False)
sketch10.addGeometry(Part.Circle(App.Vector(-5, 8.5, 0), App.Vector(0, 0, 1), 2.9), False)
sketch10.addConstraint(Sketcher.Constraint("Equal", 0, 1))
sketch10.addConstraint(Sketcher.Constraint("Symmetric", 0, 3, 1, 3, -1))
sketch10.addConstraint(Sketcher.Constraint("Diameter", 0, Q("5.8 mm")))
sketch10.addConstraint(Sketcher.Constraint("DistanceX", 0, 3, -1, 1, Q("5 mm")))
sketch10.addConstraint(Sketcher.Constraint("DistanceY", 0, 3, 1, 3, Q("17 mm")))
doc.recompute()
hole6 = body.newObject("PartDesign::Hole", "Hole005")
hole6.Profile = sketch10
hole6.ThreadType = "None"
hole6.Diameter = 5.8
hole6.DepthType = "Dimension"
hole6.Depth = 1.5
hole6.DrillPoint = "Angled"
hole6.DrillPointAngle = 118
hole6.Reversed = True

sketch11 = body.newObject("Sketcher::SketchObject", "Sketch010")
sketch11.AttachmentSupport = (doc.getObject("XY_Plane"), [""])
sketch11.MapMode = "FlatFace"
sketch11.AttachmentOffset = App.Placement(App.Vector(0, 0, 22), App.Rotation())
sketch11.addGeometry(Part.LineSegment(App.Vector(-6.8, -7.9, 0), App.Vector(-5.2, -5, 0)), False)
sketch11.addGeometry(Part.LineSegment(App.Vector(-5.2, -5, 0), App.Vector(-6.8, -2.1, 0)), False)
sketch11.addGeometry(Part.LineSegment(App.Vector(-6.8, -2.1, 0), App.Vector(-10.2, -2.1, 0)), False)
sketch11.addGeometry(Part.LineSegment(App.Vector(-10.2, -2.1, 0), App.Vector(-11.8, -5, 0)), False)
sketch11.addGeometry(Part.LineSegment(App.Vector(-11.8, -5, 0), App.Vector(-10.2, -7.9, 0)), False)
sketch11.addGeometry(Part.LineSegment(App.Vector(-10.2, -7.9, 0), App.Vector(-6.8, -7.9, 0)), False)
sketch11.addGeometry(Part.LineSegment(App.Vector(6.8, -7.9, 0), App.Vector(10.2, -7.9, 0)), False)
sketch11.addGeometry(Part.LineSegment(App.Vector(10.2, -7.9, 0), App.Vector(11.8, -5, 0)), False)
sketch11.addGeometry(Part.LineSegment(App.Vector(11.8, -5, 0), App.Vector(10.2, -2.1, 0)), False)
sketch11.addGeometry(Part.LineSegment(App.Vector(10.2, -2.1, 0), App.Vector(6.8, -2.1, 0)), False)
sketch11.addGeometry(Part.LineSegment(App.Vector(6.8, -2.1, 0), App.Vector(5.2, -5, 0)), False)
sketch11.addGeometry(Part.LineSegment(App.Vector(5.2, -5, 0), App.Vector(6.8, -7.9, 0)), False)
sketch11.addConstraint(Sketcher.Constraint("Coincident", 0, 2, 1, 1))
sketch11.addConstraint(Sketcher.Constraint("Coincident", 1, 2, 2, 1))
sketch11.addConstraint(Sketcher.Constraint("Coincident", 2, 2, 3, 1))
sketch11.addConstraint(Sketcher.Constraint("Coincident", 3, 2, 4, 1))
sketch11.addConstraint(Sketcher.Constraint("Coincident", 4, 2, 5, 1))
sketch11.addConstraint(Sketcher.Constraint("Coincident", 5, 2, 0, 1))
sketch11.addConstraint(Sketcher.Constraint("Coincident", 6, 2, 7, 1))
sketch11.addConstraint(Sketcher.Constraint("Coincident", 7, 2, 8, 1))
sketch11.addConstraint(Sketcher.Constraint("Coincident", 8, 2, 9, 1))
sketch11.addConstraint(Sketcher.Constraint("Coincident", 9, 2, 10, 1))
sketch11.addConstraint(Sketcher.Constraint("Coincident", 10, 2, 11, 1))
sketch11.addConstraint(Sketcher.Constraint("Coincident", 11, 2, 6, 1))
sketch11.addConstraint(Sketcher.Constraint("Horizontal", 2))
sketch11.addConstraint(Sketcher.Constraint("Horizontal", 5))
sketch11.addConstraint(Sketcher.Constraint("Horizontal", 6))
sketch11.addConstraint(Sketcher.Constraint("Horizontal", 9))
sketch11.addConstraint(Sketcher.Constraint("Symmetric", 4, 2, 6, 2, -2))
sketch11.addConstraint(Sketcher.Constraint("Symmetric", 3, 2, 7, 2, -2))
sketch11.addConstraint(Sketcher.Constraint("Symmetric", 2, 2, 8, 2, -2))
sketch11.addConstraint(Sketcher.Constraint("Symmetric", 0, 2, 10, 2, -2))
sketch11.addConstraint(Sketcher.Constraint("Parallel", 0, 3))
sketch11.addConstraint(Sketcher.Constraint("Parallel", 1, 4))
sketch11.addConstraint(Sketcher.Constraint("Parallel", 3, 7))
sketch11.addConstraint(Sketcher.Constraint("Parallel", 7, 10))
sketch11.addConstraint(Sketcher.Constraint("Parallel", 8, 11))
sketch11.addConstraint(Sketcher.Constraint("Horizontal", 0, 2, 3, 2))
sketch11.addConstraint(Sketcher.Constraint("Vertical", 2, 2, 4, 2))
sketch11.addConstraint(Sketcher.Constraint("Angle", 0, Q("60 deg")))
sketch11.addConstraint(Sketcher.Constraint("DistanceY", 0, 2, -1, 1, Q("5 mm")))
sketch11.addConstraint(Sketcher.Constraint("DistanceX", 5, 2, 6, 2, Q("17 mm")))
sketch11.addConstraint(Sketcher.Constraint("DistanceY", 1, 2, -1, 1, Q("2.1 mm")))
sketch11.addConstraint(Sketcher.Constraint("DistanceX", 2, 2, 2, 1, Q("3.348632 mm")))
pocket4 = body.newObject("PartDesign::Pocket", "Pocket003")
pocket4.Profile = sketch11
pocket4.Length = 4

sketch12 = body.newObject("Sketcher::SketchObject", "Sketch011")
sketch12.AttachmentSupport = (doc.getObject("XY_Plane"), [""])
sketch12.MapMode = "FlatFace"
sketch12.AttachmentOffset = App.Placement(App.Vector(0, 0, 28), App.Rotation())
sketch12.addGeometry(Part.Circle(App.Vector(-8.5, -5, 0), App.Vector(0, 0, 1), 2.9), False)
sketch12.addGeometry(Part.Circle(App.Vector(8.5, -5, 0), App.Vector(0, 0, 1), 2.9), False)
sketch12.addConstraint(Sketcher.Constraint("Equal", 0, 1))
sketch12.addConstraint(Sketcher.Constraint("Symmetric", 0, 3, 1, 3, -2))
sketch12.addConstraint(Sketcher.Constraint("Diameter", 0, Q("5.8 mm")))
sketch12.addConstraint(Sketcher.Constraint("DistanceY", 0, 3, -1, 1, Q("5 mm")))
sketch12.addConstraint(Sketcher.Constraint("DistanceX", 0, 3, 1, 3, Q("17 mm")))
doc.recompute()
hole7 = body.newObject("PartDesign::Hole", "Hole006")
hole7.Profile = sketch12
hole7.ThreadType = "None"
hole7.Diameter = 5.8
hole7.DepthType = "Dimension"
hole7.Depth = 1.5
hole7.DrillPoint = "Angled"
hole7.DrillPointAngle = 118

sketch13 = body.newObject("Sketcher::SketchObject", "Sketch012")
sketch13.AttachmentSupport = (doc.getObject("XY_Plane"), [""])
sketch13.MapMode = "FlatFace"
sketch13.AttachmentOffset = App.Placement(App.Vector(0, 0, 25.748924), App.Rotation())
sketch13.addGeometry(Part.Circle(App.Vector(-8.5, -5, 0), App.Vector(0, 0, 1), 1.6), False)
sketch13.addGeometry(Part.Circle(App.Vector(8.5, -5, 0), App.Vector(0, 0, 1), 1.6), False)
sketch13.addConstraint(Sketcher.Constraint("Equal", 0, 1))
sketch13.addConstraint(Sketcher.Constraint("Symmetric", 0, 3, 1, 3, -2))
sketch13.addConstraint(Sketcher.Constraint("Diameter", 0, Q("3.3 mm")))
sketch13.addConstraint(Sketcher.Constraint("DistanceY", 0, 3, -1, 1, Q("5 mm")))
sketch13.addConstraint(Sketcher.Constraint("DistanceX", 0, 3, 1, 3, Q("17 mm")))
doc.recompute()
hole8 = body.newObject("PartDesign::Hole", "Hole007")
hole8.Profile = sketch13
hole8.ThreadType = "None"
hole8.Diameter = 3.3
hole8.DepthType = "Dimension"
hole8.Depth = 10
hole8.DrillPoint = "Angled"
hole8.DrillPointAngle = 118
doc.recompute()

chamfer = body.newObject("PartDesign::Chamfer", "Chamfer")
chamfer.Base = (hole8, edges_at(hole8, [
    (28, -5, 28),
    (28, -5, -28),
    (-28, -5, -28),
    (-28, -5, 28),
]))
chamfer.Size = 1

sketch14 = body.newObject("Sketcher::SketchObject", "Sketch013")
sketch14.AttachmentSupport = (doc.getObject("XZ_Plane"), [""])
sketch14.MapMode = "FlatFace"
sketch14.addGeometry(Part.Circle(App.Vector(0, 0, 0), App.Vector(0, 0, 1), 2.6), False)
sketch14.addConstraint(Sketcher.Constraint("Coincident", 0, 3, -1, 1))
sketch14.addConstraint(Sketcher.Constraint("Diameter", 0, Q("5.1054 mm")))
doc.recompute()
hole9 = body.newObject("PartDesign::Hole", "Hole008")
hole9.Profile = sketch14
hole9.ThreadType = "None"
hole9.Diameter = 5.1054
hole9.DepthType = "Dimension"
hole9.Depth = 15.81
hole9.DrillPoint = "Angled"
hole9.DrillPointAngle = 118
hole9.Reversed = True

doc.recompute()
